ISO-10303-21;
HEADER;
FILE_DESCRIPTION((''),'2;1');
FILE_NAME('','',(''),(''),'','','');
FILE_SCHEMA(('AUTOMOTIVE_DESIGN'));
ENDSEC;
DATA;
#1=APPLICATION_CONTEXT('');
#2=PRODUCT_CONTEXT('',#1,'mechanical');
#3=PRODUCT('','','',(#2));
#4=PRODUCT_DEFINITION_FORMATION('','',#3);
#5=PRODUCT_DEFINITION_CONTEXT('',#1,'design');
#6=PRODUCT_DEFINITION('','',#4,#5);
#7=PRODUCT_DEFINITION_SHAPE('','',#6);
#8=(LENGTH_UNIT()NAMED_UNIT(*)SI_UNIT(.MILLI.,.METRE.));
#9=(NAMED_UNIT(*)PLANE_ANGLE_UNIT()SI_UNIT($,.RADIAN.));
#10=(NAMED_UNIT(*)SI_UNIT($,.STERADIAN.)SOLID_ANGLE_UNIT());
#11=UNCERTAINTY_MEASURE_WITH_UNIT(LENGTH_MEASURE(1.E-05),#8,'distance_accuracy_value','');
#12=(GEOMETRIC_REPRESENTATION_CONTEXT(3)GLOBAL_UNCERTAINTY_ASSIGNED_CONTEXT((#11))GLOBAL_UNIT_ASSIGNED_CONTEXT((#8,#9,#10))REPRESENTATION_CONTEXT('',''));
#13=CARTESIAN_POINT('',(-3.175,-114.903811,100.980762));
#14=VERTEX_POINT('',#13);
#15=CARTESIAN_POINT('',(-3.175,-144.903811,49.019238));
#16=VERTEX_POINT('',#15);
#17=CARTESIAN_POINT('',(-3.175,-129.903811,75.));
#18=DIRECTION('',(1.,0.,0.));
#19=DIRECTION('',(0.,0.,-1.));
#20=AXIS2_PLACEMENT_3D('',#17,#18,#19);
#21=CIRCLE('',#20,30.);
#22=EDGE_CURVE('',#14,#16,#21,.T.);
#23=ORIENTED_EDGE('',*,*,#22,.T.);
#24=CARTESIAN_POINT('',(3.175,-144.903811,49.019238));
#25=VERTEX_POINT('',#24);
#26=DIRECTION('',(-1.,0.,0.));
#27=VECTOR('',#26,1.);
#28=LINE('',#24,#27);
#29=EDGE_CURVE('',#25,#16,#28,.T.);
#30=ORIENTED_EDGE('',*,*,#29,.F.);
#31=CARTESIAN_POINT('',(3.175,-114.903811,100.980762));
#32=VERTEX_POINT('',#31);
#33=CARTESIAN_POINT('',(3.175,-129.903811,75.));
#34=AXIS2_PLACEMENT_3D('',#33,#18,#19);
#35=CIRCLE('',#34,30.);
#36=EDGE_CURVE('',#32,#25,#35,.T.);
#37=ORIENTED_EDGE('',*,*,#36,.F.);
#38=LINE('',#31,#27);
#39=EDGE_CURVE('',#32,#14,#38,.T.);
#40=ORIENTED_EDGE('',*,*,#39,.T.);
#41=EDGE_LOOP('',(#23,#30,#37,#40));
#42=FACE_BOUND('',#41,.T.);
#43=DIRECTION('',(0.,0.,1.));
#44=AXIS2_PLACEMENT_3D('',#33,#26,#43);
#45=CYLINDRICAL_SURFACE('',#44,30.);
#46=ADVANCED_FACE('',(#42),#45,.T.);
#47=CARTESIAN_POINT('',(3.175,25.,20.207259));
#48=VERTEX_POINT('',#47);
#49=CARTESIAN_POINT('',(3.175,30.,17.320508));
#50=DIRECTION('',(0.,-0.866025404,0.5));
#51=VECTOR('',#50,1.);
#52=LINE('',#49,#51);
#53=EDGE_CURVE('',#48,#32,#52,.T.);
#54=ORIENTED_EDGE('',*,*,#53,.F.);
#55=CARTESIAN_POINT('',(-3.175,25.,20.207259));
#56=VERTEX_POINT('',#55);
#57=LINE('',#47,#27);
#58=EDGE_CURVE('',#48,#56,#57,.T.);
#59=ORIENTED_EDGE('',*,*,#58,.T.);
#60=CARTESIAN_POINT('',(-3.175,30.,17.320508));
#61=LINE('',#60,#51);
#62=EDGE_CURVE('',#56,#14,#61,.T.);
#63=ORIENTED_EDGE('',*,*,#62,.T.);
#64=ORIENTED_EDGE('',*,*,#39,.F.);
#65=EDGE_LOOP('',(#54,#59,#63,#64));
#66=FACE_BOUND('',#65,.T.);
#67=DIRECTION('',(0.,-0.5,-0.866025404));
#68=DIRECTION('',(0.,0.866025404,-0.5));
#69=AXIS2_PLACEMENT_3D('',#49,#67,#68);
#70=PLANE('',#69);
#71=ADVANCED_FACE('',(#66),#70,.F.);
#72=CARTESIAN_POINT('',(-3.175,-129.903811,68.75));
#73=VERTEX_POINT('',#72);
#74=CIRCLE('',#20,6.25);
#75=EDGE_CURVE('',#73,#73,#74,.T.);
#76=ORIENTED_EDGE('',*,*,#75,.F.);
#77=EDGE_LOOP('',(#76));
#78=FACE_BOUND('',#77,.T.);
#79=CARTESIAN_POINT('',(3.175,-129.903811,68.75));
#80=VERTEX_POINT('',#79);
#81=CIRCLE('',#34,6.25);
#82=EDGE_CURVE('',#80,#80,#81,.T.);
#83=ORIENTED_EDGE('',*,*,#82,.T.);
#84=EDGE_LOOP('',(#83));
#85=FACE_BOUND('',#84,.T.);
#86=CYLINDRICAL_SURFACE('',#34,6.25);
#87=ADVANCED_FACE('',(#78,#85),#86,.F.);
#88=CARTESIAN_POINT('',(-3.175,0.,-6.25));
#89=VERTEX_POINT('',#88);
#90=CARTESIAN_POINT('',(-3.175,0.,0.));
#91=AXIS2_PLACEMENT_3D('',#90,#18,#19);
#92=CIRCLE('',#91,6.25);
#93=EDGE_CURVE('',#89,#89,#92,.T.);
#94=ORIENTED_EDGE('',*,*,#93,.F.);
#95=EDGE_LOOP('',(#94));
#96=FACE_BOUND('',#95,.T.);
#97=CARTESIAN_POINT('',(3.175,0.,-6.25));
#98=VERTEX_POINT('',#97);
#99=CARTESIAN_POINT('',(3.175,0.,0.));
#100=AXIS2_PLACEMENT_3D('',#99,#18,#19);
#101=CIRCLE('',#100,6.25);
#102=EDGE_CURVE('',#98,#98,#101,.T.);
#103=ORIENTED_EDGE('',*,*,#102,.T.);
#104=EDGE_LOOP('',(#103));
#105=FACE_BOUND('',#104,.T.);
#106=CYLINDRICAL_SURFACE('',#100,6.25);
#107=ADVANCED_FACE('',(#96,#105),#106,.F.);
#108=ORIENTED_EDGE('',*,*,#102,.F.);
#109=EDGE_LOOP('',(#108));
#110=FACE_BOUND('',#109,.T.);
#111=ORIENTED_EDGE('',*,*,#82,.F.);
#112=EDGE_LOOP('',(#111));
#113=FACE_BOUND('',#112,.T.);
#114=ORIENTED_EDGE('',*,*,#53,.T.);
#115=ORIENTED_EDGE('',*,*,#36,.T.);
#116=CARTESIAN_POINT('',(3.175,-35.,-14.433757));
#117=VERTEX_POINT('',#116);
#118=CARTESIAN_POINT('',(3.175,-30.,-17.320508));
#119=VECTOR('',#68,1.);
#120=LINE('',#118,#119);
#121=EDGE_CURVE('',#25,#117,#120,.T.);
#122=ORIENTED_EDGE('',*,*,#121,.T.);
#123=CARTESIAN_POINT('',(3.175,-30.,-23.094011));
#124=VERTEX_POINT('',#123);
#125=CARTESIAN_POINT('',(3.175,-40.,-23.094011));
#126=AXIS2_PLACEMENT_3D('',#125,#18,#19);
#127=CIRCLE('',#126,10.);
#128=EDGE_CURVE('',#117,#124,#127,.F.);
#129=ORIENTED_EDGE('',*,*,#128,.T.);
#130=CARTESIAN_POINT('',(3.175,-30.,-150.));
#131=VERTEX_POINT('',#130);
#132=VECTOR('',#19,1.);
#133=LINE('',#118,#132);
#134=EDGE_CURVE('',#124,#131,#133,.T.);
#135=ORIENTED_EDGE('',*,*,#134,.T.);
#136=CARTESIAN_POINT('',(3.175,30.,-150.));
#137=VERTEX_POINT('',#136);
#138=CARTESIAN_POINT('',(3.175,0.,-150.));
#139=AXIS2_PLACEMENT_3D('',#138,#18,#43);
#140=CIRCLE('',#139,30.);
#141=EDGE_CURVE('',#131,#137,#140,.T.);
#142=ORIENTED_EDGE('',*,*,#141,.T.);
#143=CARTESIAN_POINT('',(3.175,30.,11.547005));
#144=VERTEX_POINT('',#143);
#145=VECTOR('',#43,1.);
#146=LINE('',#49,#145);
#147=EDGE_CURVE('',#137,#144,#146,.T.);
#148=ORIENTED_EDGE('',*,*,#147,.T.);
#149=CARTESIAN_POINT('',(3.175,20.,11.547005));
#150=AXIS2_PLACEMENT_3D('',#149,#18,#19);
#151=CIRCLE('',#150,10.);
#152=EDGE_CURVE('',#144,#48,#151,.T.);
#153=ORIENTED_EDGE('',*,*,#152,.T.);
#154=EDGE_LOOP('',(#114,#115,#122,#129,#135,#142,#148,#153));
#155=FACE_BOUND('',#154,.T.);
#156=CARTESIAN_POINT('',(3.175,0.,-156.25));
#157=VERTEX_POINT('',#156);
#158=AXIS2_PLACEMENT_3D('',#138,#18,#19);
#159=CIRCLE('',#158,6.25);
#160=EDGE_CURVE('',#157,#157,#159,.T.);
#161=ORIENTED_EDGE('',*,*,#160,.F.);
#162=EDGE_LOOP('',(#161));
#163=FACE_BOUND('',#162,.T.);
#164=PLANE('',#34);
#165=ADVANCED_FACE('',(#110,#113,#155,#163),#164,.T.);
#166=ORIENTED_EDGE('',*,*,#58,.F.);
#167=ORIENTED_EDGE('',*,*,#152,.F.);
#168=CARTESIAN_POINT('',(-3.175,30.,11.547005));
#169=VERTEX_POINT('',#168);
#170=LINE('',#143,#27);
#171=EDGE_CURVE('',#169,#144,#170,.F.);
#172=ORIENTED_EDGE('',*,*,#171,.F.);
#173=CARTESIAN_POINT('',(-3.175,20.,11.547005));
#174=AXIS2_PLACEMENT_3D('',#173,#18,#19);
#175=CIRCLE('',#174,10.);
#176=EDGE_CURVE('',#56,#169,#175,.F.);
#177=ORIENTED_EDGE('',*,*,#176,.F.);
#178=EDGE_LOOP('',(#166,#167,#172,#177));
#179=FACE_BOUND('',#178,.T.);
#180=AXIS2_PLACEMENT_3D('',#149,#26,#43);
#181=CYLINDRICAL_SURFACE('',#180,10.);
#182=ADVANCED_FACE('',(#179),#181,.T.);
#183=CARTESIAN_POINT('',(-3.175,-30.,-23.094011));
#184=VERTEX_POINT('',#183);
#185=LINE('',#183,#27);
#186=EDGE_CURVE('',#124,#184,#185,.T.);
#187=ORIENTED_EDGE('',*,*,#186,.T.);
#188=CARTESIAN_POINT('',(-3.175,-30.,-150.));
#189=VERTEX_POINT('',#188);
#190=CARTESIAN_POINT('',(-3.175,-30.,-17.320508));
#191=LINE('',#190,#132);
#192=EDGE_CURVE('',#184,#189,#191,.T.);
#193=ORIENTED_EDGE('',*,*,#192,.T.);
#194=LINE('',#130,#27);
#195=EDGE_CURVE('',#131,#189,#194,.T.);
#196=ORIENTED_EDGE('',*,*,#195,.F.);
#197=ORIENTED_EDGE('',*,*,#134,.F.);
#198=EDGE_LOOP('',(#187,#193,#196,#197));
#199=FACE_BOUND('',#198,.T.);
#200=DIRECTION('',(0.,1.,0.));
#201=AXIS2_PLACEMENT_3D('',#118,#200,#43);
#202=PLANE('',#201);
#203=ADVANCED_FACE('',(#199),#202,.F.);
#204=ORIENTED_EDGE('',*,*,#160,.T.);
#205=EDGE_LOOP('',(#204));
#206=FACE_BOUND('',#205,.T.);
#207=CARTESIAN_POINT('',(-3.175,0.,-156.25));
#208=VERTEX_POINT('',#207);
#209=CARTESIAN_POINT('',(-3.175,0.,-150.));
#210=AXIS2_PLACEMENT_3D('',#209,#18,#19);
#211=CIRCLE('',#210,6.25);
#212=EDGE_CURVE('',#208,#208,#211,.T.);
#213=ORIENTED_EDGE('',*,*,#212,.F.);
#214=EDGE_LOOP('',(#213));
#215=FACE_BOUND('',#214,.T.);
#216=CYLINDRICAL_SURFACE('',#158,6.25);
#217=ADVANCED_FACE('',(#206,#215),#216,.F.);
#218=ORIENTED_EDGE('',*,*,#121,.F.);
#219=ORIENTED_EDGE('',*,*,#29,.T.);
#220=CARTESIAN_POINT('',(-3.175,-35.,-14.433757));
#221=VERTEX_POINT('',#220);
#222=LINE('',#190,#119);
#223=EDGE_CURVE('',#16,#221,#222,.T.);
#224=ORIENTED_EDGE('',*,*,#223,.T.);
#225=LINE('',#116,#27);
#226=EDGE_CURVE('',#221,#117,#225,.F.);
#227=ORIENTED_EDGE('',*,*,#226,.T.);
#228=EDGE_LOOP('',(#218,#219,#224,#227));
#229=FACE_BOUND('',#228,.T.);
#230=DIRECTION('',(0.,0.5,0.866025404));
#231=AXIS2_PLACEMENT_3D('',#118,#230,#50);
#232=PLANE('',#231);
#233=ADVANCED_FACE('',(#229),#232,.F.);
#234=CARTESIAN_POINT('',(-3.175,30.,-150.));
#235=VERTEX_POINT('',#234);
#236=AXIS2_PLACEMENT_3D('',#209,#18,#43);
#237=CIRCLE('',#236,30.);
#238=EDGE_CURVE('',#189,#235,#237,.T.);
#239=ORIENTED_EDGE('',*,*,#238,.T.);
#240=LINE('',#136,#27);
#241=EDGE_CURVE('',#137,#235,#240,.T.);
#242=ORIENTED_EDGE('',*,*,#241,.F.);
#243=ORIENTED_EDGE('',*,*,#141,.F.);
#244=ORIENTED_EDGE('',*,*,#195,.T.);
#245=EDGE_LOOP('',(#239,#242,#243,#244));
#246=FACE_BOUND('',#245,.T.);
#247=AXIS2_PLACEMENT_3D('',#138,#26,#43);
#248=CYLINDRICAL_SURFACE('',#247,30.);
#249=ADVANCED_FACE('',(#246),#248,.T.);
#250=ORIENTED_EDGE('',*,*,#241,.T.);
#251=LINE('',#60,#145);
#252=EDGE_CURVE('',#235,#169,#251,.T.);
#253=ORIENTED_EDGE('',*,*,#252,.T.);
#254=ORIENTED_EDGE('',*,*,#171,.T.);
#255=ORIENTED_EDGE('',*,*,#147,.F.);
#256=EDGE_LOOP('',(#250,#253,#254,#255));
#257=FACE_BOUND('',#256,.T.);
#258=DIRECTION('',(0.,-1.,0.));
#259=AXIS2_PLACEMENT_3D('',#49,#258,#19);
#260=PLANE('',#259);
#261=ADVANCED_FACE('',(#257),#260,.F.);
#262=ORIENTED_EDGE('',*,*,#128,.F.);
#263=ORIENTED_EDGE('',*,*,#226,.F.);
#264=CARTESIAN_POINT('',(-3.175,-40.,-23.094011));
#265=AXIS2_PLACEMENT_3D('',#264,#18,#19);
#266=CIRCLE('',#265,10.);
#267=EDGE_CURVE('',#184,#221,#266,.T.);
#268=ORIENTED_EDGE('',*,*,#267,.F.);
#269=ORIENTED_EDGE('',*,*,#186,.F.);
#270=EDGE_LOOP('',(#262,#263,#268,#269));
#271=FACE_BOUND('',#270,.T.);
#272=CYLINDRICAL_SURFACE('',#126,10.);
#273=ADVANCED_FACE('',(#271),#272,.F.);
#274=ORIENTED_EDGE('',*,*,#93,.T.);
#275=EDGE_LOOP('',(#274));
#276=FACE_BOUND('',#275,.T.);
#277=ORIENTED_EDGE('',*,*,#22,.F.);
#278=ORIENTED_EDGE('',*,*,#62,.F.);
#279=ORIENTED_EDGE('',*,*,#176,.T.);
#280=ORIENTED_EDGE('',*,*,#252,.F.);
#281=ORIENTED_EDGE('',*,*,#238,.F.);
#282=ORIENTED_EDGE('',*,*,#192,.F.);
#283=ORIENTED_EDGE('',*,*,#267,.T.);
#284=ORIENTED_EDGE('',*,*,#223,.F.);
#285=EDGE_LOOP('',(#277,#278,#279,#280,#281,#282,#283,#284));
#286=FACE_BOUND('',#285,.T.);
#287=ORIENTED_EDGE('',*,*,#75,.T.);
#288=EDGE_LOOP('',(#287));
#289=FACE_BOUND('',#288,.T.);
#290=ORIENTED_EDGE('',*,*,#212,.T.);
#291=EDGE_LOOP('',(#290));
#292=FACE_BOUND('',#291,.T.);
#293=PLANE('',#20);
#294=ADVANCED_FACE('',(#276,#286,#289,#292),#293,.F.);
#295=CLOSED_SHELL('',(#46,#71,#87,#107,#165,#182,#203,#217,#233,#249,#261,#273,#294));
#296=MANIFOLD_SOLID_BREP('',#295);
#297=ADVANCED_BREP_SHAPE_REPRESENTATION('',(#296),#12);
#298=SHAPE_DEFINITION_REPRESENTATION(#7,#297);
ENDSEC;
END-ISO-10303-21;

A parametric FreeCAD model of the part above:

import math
import FreeCAD as App
import Part
import Sketcher
from FreeCAD import Vector
Q = App.Units.Quantity


def edges_at(feature, points):
    """Names of the edges that pass closest to the given points."""
    edges = feature.Shape.Edges
    near = lambda p: min(range(len(edges)), key=lambda i: edges[i].distToShape(Part.Vertex(*p))[0])
    return sorted({f"Edge{near(p) + 1}" for p in points})

doc = App.newDocument("Part")
params = doc.addObject("Spreadsheet::Sheet", "Params")
for row, (alias, value) in enumerate([
    ("sketch1_radius", "30 mm"),
    ("pad1_length", "6.35 mm"),
    ("sketch2_diameter", "12.5 mm"),
    ("hole_diameter", "12.5 mm"),
    ("fillet_radius", "10 mm"),
], start=1):
    params.set(f"A{row}", alias)
    params.set(f"B{row}", "=" + value)
    params.setAlias(f"B{row}", alias)

body = doc.addObject("PartDesign::Body", "Body")

# Sketch on YZ plane
sketch1 = body.newObject("Sketcher::SketchObject", "Sketch")
sketch1.AttachmentSupport = (doc.getObject("YZ_Plane"), [""])
sketch1.MapMode = "FlatFace"
sketch1.addGeometry([
    Part.LineSegment(Vector(30, -150, 0), Vector(30, 17.320508, 0)),  # 0
    Part.LineSegment(Vector(30, 17.320508, 0), Vector(-114.903811, 100.980762, 0)),  # 1
    Part.ArcOfCircle(Part.Circle(Vector(-129.903811, 75, 0), Vector(0, 0, 1), 30), math.radians(60), math.radians(240)),  # 2
    Part.LineSegment(Vector(-144.903811, 49.019238, 0), Vector(-30, -17.320508, 0)),  # 3
    Part.LineSegment(Vector(-30, -17.320508, 0), Vector(-30, -150, 0)),  # 4
    Part.ArcOfCircle(Part.Circle(Vector(0, -150, 0), Vector(0, 0, 1), 30), math.radians(180), math.radians(360)),  # 5
], False)
sketch1.addConstraint([
    Sketcher.Constraint("Coincident", 0, 2, 1, 1),
    Sketcher.Constraint("Tangent", 1, 2, 2, 1),
    Sketcher.Constraint("Tangent", 2, 2, 3, 1),
    Sketcher.Constraint("Coincident", 3, 2, 4, 1),
    Sketcher.Constraint("Tangent", 4, 2, 5, 1),
    Sketcher.Constraint("Tangent", 5, 2, 0, 1),
    Sketcher.Constraint("Vertical", 0),
    Sketcher.Constraint("Vertical", 4),
    Sketcher.Constraint("Equal", 2, 5),
    Sketcher.Constraint("Symmetric", 0, 2, 3, 2, -1, 1),
    Sketcher.Constraint("Parallel", 1, 3),
    Sketcher.Constraint("Radius", 2, 30.0),
    Sketcher.Constraint("Angle", 1, Q("150 deg")),
    Sketcher.Constraint("DistanceY", -1, 1, 2, 3, 75.0),
    Sketcher.Constraint("DistanceY", 5, 3, -1, 1, 150.0),
])
sketch1.setExpression("Constraints[11]", "Params.sketch1_radius")
pad1 = body.newObject("PartDesign::Pad", "Pad")
pad1.Profile = sketch1
pad1.setExpression("Length", "Params.pad1_length")
pad1.Midplane = True

# Sketch on YZ plane
sketch2 = body.newObject("Sketcher::SketchObject", "Sketch001")
sketch2.AttachmentSupport = (doc.getObject("YZ_Plane"), [""])
sketch2.MapMode = "FlatFace"
sketch2.AttachmentOffset = App.Placement(Vector(0, 0, 3.175), App.Rotation())
sketch2.addGeometry([
    Part.Circle(Vector(0, 0, 0), Vector(0, 0, 1), 6.25),
    Part.Circle(Vector(-129.903811, 75, 0), Vector(0, 0, 1), 6.25),
    Part.Circle(Vector(0, -150, 0), Vector(0, 0, 1), 6.25),
], False)
sketch2.addConstraint([
    Sketcher.Constraint("Coincident", 0, 3, -1, 1),
    Sketcher.Constraint("Equal", 0, 1),
    Sketcher.Constraint("Equal", 1, 2),
    Sketcher.Constraint("PointOnObject", 2, 3, -2),
    Sketcher.Constraint("Diameter", 0, 12.5),
    Sketcher.Constraint("DistanceY", -1, 1, 1, 3, 75.0),
    Sketcher.Constraint("DistanceY", 2, 3, -1, 1, 150.0),
    Sketcher.Constraint("DistanceX", 1, 3, -1, 1, 129.903811),
])
sketch2.setExpression("Constraints[4]", "Params.sketch2_diameter")
doc.recompute()
hole = body.newObject("PartDesign::Hole", "Hole")
hole.Profile = sketch2
hole.ThreadType = "None"
hole.setExpression("Diameter", "Params.hole_diameter")
hole.DepthType = "ThroughAll"
doc.recompute()

fillet = body.newObject("PartDesign::Fillet", "Fillet")
fillet.Base = (hole, edges_at(hole, [(0, 30, 17.321), (0, -30, -17.321)]))
fillet.setExpression("Radius", "Params.fillet_radius")

doc.recompute()
